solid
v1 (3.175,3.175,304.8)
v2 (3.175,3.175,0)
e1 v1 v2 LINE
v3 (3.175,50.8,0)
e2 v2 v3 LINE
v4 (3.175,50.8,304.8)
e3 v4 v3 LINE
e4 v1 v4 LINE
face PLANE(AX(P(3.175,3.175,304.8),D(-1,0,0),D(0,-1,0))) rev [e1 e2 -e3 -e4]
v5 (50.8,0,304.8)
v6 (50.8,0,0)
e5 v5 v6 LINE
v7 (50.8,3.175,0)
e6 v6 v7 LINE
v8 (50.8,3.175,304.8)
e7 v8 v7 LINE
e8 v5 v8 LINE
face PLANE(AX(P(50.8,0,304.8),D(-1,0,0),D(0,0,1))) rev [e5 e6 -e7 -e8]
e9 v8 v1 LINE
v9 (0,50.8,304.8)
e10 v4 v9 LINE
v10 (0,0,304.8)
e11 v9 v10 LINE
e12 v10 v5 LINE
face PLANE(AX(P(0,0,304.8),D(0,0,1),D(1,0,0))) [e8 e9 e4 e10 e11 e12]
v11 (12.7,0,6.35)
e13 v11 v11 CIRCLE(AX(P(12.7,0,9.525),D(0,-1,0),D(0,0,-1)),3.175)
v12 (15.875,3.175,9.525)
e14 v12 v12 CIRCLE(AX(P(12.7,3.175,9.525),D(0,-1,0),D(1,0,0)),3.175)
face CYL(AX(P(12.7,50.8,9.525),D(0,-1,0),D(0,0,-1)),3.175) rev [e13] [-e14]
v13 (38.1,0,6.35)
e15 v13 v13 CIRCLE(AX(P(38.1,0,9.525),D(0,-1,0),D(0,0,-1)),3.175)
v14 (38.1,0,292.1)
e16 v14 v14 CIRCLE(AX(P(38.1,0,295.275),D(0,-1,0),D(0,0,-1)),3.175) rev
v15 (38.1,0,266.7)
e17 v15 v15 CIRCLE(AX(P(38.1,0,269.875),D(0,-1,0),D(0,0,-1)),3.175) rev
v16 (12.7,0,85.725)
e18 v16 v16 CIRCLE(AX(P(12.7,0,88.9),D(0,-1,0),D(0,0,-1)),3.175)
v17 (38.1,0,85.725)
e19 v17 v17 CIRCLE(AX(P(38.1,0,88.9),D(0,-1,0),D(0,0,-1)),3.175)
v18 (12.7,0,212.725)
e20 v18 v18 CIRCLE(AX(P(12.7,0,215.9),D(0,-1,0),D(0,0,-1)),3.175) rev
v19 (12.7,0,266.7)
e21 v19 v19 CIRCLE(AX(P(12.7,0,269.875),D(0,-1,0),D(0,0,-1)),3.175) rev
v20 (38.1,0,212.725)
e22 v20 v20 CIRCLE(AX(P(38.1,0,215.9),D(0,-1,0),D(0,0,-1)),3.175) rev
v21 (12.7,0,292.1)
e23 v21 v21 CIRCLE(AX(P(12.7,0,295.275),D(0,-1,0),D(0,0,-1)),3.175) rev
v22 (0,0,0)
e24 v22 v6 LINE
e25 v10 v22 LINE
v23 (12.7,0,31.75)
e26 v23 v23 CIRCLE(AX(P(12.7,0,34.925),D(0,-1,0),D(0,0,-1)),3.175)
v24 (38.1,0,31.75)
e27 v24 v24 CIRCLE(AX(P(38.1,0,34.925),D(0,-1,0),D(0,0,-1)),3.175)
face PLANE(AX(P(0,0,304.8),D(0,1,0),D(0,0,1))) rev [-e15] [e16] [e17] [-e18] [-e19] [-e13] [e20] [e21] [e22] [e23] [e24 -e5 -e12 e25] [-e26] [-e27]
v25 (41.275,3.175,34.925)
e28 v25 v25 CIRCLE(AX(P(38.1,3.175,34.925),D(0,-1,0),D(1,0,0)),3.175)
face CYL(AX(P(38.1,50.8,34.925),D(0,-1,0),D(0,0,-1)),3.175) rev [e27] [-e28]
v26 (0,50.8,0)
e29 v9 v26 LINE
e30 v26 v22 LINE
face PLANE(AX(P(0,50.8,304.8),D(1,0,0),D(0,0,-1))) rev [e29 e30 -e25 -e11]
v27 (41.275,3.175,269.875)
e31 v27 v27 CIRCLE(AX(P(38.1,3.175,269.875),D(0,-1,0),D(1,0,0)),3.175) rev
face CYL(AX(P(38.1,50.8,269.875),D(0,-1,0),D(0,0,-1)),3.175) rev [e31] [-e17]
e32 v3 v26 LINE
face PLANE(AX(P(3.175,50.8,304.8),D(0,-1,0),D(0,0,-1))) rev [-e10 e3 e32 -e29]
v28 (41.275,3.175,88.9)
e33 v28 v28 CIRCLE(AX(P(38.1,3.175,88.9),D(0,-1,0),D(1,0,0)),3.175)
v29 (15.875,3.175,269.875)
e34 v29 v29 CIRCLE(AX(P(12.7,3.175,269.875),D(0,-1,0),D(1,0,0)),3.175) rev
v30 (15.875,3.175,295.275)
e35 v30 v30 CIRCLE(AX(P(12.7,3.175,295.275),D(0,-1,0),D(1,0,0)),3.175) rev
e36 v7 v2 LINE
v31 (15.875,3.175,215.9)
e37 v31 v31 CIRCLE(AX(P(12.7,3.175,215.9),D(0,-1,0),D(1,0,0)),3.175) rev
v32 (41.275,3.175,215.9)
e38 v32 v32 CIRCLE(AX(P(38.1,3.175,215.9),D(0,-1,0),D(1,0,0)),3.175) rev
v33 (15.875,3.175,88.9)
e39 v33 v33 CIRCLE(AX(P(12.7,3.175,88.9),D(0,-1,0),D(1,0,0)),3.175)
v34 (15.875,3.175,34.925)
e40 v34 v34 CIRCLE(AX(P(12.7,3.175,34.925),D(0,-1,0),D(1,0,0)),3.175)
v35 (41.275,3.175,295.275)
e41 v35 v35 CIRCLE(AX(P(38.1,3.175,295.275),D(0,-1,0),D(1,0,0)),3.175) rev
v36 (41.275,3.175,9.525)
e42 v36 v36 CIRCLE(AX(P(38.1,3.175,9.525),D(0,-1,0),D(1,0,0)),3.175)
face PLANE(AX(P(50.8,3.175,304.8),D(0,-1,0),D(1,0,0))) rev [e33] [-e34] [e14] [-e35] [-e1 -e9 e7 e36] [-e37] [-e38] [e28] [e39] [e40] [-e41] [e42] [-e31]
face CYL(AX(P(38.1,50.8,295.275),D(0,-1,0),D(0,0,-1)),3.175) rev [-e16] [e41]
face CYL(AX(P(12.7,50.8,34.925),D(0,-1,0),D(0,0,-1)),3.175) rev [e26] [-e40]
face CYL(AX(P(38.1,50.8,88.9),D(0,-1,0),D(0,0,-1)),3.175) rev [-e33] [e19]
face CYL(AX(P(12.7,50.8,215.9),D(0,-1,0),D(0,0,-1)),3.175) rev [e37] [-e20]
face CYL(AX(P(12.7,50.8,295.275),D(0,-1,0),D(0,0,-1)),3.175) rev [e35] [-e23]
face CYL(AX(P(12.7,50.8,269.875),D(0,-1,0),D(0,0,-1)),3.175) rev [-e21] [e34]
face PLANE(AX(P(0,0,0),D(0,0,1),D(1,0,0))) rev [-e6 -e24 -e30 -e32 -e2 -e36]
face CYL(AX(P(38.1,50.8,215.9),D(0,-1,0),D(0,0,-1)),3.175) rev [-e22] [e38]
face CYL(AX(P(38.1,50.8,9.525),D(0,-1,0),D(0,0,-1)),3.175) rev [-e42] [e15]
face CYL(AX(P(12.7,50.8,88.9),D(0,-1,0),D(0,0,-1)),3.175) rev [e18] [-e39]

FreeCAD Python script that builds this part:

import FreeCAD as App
import Part
import Sketcher
Q = App.Units.Quantity

doc = App.newDocument("Part")
body = doc.addObject("PartDesign::Body", "Body")

sketch1 = body.newObject("Sketcher::SketchObject", "Sketch")
sketch1.AttachmentSupport = (doc.getObject("XY_Plane"), [""])
sketch1.MapMode = "FlatFace"
sketch1.addGeometry([
    Part.LineSegment(App.Vector(0, 0, 0), App.Vector(50.8, 0, 0)),
    Part.LineSegment(App.Vector(50.8, 0, 0), App.Vector(50.8, 3.175, 0)),
    Part.LineSegment(App.Vector(50.8, 3.175, 0), App.Vector(3.175, 3.175, 0)),
    Part.LineSegment(App.Vector(3.175, 3.175, 0), App.Vector(3.175, 50.8, 0)),
    Part.LineSegment(App.Vector(3.175, 50.8, 0), App.Vector(0, 50.8, 0)),
    Part.LineSegment(App.Vector(0, 50.8, 0), App.Vector(0, 0, 0)),
], False)
sketch1.addConstraint([
    Sketcher.Constraint("Coincident", 0, 2, 1, 1),
    Sketcher.Constraint("Coincident", 1, 2, 2, 1),
    Sketcher.Constraint("Coincident", 2, 2, 3, 1),
    Sketcher.Constraint("Coincident", 3, 2, 4, 1),
    Sketcher.Constraint("Coincident", 4, 2, 5, 1),
    Sketcher.Constraint("Coincident", 5, 2, 0, 1),
    Sketcher.Constraint("Horizontal", 0),
    Sketcher.Constraint("Vertical", 1),
    Sketcher.Constraint("Horizontal", 2),
    Sketcher.Constraint("Vertical", 3),
    Sketcher.Constraint("Horizontal", 4),
    Sketcher.Constraint("Vertical", 5),
    Sketcher.Constraint("Coincident", 5, 2, -1, 1),
    Sketcher.Constraint("Equal", 4, 1),
    Sketcher.Constraint("Equal", 2, 3),
    Sketcher.Constraint("DistanceX", 0, 1, 0, 2, Q("2 in")),
    Sketcher.Constraint("DistanceX", 2, 2, 2, 1, Q("1.875 in")),
])
pad1 = body.newObject("PartDesign::Pad", "Pad")
pad1.Profile = sketch1
pad1.Length = Q("12 in")

sketch2 = body.newObject("Sketcher::SketchObject", "Sketch001")
sketch2.AttachmentSupport = (doc.getObject("XZ_Plane"), [""])
sketch2.MapMode = "FlatFace"
sketch2.addGeometry([
    Part.Circle(App.Vector(12.7, 9.525, 0), App.Vector(0, 0, 1), 3.175),
    Part.Circle(App.Vector(12.7, 34.925, 0), App.Vector(0, 0, 1), 3.175),
    Part.Circle(App.Vector(38.1, 34.925, 0), App.Vector(0, 0, 1), 3.175),
    Part.Circle(App.Vector(38.1, 9.525, 0), App.Vector(0, 0, 1), 3.175),
    Part.Circle(App.Vector(12.7, 215.9, 0), App.Vector(0, 0, 1), 3.175),
    Part.Circle(App.Vector(38.1, 215.9, 0), App.Vector(0, 0, 1), 3.175),
    Part.Circle(App.Vector(38.1, 88.9, 0), App.Vector(0, 0, 1), 3.175),
    Part.Circle(App.Vector(12.7, 88.9, 0), App.Vector(0, 0, 1), 3.175),
    Part.Circle(App.Vector(12.7, 295.275, 0), App.Vector(0, 0, 1), 3.175),
    Part.Circle(App.Vector(12.7, 269.875, 0), App.Vector(0, 0, 1), 3.175),
    Part.Circle(App.Vector(38.1, 269.875, 0), App.Vector(0, 0, 1), 3.175),
    Part.Circle(App.Vector(38.1, 295.275, 0), App.Vector(0, 0, 1), 3.175),
], False)
sketch2.addConstraint([
    Sketcher.Constraint("Equal", 0, 1),
    Sketcher.Constraint("Equal", 1, 2),
    Sketcher.Constraint("Equal", 2, 3),
    Sketcher.Constraint("Equal", 3, 4),
    Sketcher.Constraint("Equal", 4, 5),
    Sketcher.Constraint("Equal", 5, 6),
    Sketcher.Constraint("Equal", 6, 7),
    Sketcher.Constraint("Equal", 7, 8),
    Sketcher.Constraint("Equal", 8, 9),
    Sketcher.Constraint("Equal", 9, 10),
    Sketcher.Constraint("Equal", 10, 11),
    Sketcher.Constraint("Horizontal", 1, 3, 2, 3),
    Sketcher.Constraint("Horizontal", 0, 3, 3, 3),
    Sketcher.Constraint("Horizontal", 4, 3, 5, 3),
    Sketcher.Constraint("Horizontal", 6, 3, 7, 3),
    Sketcher.Constraint("Horizontal", 9, 3, 10, 3),
    Sketcher.Constraint("Horizontal", 8, 3, 11, 3),
    Sketcher.Constraint("Vertical", 0, 3, 1, 3),
    Sketcher.Constraint("Vertical", 2, 3, 3, 3),
    Sketcher.Constraint("Vertical", 1, 3, 4, 3),
    Sketcher.Constraint("Vertical", 3, 3, 5, 3),
    Sketcher.Constraint("Vertical", 5, 3, 6, 3),
    Sketcher.Constraint("Vertical", 4, 3, 7, 3),
    Sketcher.Constraint("Vertical", 7, 3, 8, 3),
    Sketcher.Constraint("Vertical", 8, 3, 9, 3),
    Sketcher.Constraint("Vertical", 6, 3, 10, 3),
    Sketcher.Constraint("Vertical", 10, 3, 11, 3),
    Sketcher.Constraint("Diameter", 0, Q("0.25 in")),
    Sketcher.Constraint("DistanceY", 0, 3, 1, 3, Q("1 in")),
    Sketcher.Constraint("DistanceX", 1, 3, 2, 3, Q("1 in")),
    Sketcher.Constraint("DistanceY", 6, 3, 5, 3, Q("5 in")),
    Sketcher.Constraint("DistanceY", 9, 3, 8, 3, Q("1 in")),
    Sketcher.Constraint("DistanceX", -1, 1, 0, 3, Q("0.5 in")),
    Sketcher.Constraint("DistanceY", -1, 1, 4, 3, Q("8.5 in")),
    Sketcher.Constraint("DistanceY", 1, 3, 8, 3, Q("10.25 in")),
    Sketcher.Constraint("DistanceY", -1, 1, 0, 3, Q("0.375 in")),
])
pocket1 = body.newObject("PartDesign::Pocket", "Pocket")
pocket1.Profile = sketch2
pocket1.Type = "ThroughAll"

doc.recompute()
